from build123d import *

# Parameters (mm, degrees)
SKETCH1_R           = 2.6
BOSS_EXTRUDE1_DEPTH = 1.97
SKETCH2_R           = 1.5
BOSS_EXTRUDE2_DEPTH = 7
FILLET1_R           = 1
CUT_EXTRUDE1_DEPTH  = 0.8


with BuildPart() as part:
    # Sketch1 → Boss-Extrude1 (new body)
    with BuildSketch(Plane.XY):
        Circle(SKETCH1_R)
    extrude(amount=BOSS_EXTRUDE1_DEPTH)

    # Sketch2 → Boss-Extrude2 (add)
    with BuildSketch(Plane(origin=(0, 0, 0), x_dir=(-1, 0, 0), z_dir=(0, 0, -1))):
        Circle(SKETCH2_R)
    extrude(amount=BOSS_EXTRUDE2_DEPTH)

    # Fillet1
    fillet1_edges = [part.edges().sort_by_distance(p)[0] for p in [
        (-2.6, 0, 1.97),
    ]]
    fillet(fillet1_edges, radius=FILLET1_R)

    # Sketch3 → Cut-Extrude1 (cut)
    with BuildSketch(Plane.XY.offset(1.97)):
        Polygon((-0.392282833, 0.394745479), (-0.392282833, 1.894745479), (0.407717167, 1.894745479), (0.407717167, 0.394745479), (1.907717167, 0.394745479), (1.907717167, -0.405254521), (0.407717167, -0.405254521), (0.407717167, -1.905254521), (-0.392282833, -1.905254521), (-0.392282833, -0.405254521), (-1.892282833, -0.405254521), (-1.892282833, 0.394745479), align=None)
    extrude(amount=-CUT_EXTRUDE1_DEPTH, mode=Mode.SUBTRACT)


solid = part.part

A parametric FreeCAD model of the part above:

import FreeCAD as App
import Part
import Sketcher

V = App.Vector


def edges_at(feature, points):
    """Names of the edges that pass closest to the given points."""
    edges = feature.Shape.Edges
    near = lambda p: min(range(len(edges)), key=lambda i: edges[i].distToShape(Part.Vertex(*p))[0])
    return sorted({f"Edge{near(p) + 1}" for p in points})

doc = App.newDocument("Part")
body = doc.addObject("PartDesign::Body", "Body")

sketch1 = doc.addObject("Sketcher::SketchObject", "Sketch")
body.addObject(sketch1)
sketch1.AttachmentSupport = (doc.XY_Plane, [""])
sketch1.MapMode = "FlatFace"
sketch1.addGeometry(Part.Circle(V(0, 0, 0), V(0, 0, 1), 2.6), False)
sketch1.addConstraint([
    Sketcher.Constraint("Coincident", 0, 3, -1, 1),
    Sketcher.Constraint("Diameter", 0, 5.2),
])
pad1 = doc.addObject("PartDesign::Pad", "Pad")
body.addObject(pad1)
pad1.Profile = sketch1
pad1.Length = 1.97

sketch2 = doc.addObject("Sketcher::SketchObject", "Sketch001")
body.addObject(sketch2)
sketch2.AttachmentSupport = (doc.XY_Plane, [""])
sketch2.MapMode = "FlatFace"
sketch2.addGeometry(Part.Circle(V(0, 0, 0), V(0, 0, 1), 1.5), False)
sketch2.addConstraint([
    Sketcher.Constraint("Coincident", 0, 3, -1, 1),
    Sketcher.Constraint("Diameter", 0, 3.0),
])
pad2 = doc.addObject("PartDesign::Pad", "Pad001")
body.addObject(pad2)
pad2.Profile = sketch2
pad2.Length = 7
pad2.Reversed = True
doc.recompute()

fillet = doc.addObject("PartDesign::Fillet", "Fillet")
body.addObject(fillet)
fillet.Base = (pad2, edges_at(pad2, [(-2.6, 0, 1.97)]))
fillet.Radius = 1

sketch3 = doc.addObject("Sketcher::SketchObject", "Sketch002")
body.addObject(sketch3)
sketch3.AttachmentSupport = (doc.XY_Plane, [""])
sketch3.MapMode = "FlatFace"
sketch3.AttachmentOffset = App.Placement(V(0, 0, 1.97), App.Rotation())
sketch3.addGeometry([
    Part.LineSegment(V(-0.392283, 1.894745, 0), V(-0.392283, 0.394745, 0)),
    Part.LineSegment(V(-0.392283, 0.394745, 0), V(-1.892283, 0.394745, 0)),
    Part.LineSegment(V(-1.892283, 0.394745, 0), V(-1.892283, -0.405255, 0)),
    Part.LineSegment(V(-1.892283, -0.405255, 0), V(-0.392283, -0.405255, 0)),
    Part.LineSegment(V(-0.392283, -0.405255, 0), V(-0.392283, -1.905255, 0)),
    Part.LineSegment(V(-0.392283, -1.905255, 0), V(0.407717, -1.905255, 0)),
    Part.LineSegment(V(0.407717, -1.905255, 0), V(0.407717, -0.405255, 0)),
    Part.LineSegment(V(0.407717, -0.405255, 0), V(1.907717, -0.405255, 0)),
    Part.LineSegment(V(1.907717, -0.405255, 0), V(1.907717, 0.394745, 0)),
    Part.LineSegment(V(1.907717, 0.394745, 0), V(0.407717, 0.394745, 0)),
    Part.LineSegment(V(0.407717, 0.394745, 0), V(0.407717, 1.894745, 0)),
    Part.LineSegment(V(0.407717, 1.894745, 0), V(-0.392283, 1.894745, 0)),
], False)
sketch3.addConstraint([
    Sketcher.Constraint("Coincident", 0, 2, 1, 1),
    Sketcher.Constraint("Coincident", 1, 2, 2, 1),
    Sketcher.Constraint("Coincident", 2, 2, 3, 1),
    Sketcher.Constraint("Coincident", 3, 2, 4, 1),
    Sketcher.Constraint("Coincident", 4, 2, 5, 1),
    Sketcher.Constraint("Coincident", 5, 2, 6, 1),
    Sketcher.Constraint("Coincident", 6, 2, 7, 1),
    Sketcher.Constraint("Coincident", 7, 2, 8, 1),
    Sketcher.Constraint("Coincident", 8, 2, 9, 1),
    Sketcher.Constraint("Coincident", 9, 2, 10, 1),
    Sketcher.Constraint("Coincident", 10, 2, 11, 1),
    Sketcher.Constraint("Coincident", 11, 2, 0, 1),
    Sketcher.Constraint("Vertical", 0),
    Sketcher.Constraint("Horizontal", 1),
    Sketcher.Constraint("Vertical", 2),
    Sketcher.Constraint("Horizontal", 3),
    Sketcher.Constraint("Vertical", 4),
    Sketcher.Constraint("Horizontal", 5),
    Sketcher.Constraint("Vertical", 6),
    Sketcher.Constraint("Horizontal", 7),
    Sketcher.Constraint("Vertical", 8),
    Sketcher.Constraint("Horizontal", 9),
    Sketcher.Constraint("Vertical", 10),
    Sketcher.Constraint("Horizontal", 11),
    Sketcher.Constraint("Horizontal", 3, 2, 6, 2),
    Sketcher.Constraint("Horizontal", 1, 2, 8, 2),
    Sketcher.Constraint("Vertical", 0, 2, 3, 2),
    Sketcher.Constraint("Vertical", 6, 2, 9, 2),
    Sketcher.Constraint("Equal", 3, 7),
    Sketcher.Constraint("Equal", 9, 0),
    Sketcher.Constraint("Equal", 11, 2),
    Sketcher.Constraint("Equal", 0, 4),
    Sketcher.Constraint("DistanceX", 1, 2, 1, 1, 1.5),
    Sketcher.Constraint("DistanceX", 5, 1, 5, 2, 0.8),
    Sketcher.Constraint("DistanceX", 0, 2, -1, 1, 0.392283),
    Sketcher.Constraint("DistanceY", -1, 1, 0, 2, 0.394745),
])
pocket1 = doc.addObject("PartDesign::Pocket", "Pocket")
body.addObject(pocket1)
pocket1.Profile = sketch3
pocket1.Length = 0.8

doc.recompute()
